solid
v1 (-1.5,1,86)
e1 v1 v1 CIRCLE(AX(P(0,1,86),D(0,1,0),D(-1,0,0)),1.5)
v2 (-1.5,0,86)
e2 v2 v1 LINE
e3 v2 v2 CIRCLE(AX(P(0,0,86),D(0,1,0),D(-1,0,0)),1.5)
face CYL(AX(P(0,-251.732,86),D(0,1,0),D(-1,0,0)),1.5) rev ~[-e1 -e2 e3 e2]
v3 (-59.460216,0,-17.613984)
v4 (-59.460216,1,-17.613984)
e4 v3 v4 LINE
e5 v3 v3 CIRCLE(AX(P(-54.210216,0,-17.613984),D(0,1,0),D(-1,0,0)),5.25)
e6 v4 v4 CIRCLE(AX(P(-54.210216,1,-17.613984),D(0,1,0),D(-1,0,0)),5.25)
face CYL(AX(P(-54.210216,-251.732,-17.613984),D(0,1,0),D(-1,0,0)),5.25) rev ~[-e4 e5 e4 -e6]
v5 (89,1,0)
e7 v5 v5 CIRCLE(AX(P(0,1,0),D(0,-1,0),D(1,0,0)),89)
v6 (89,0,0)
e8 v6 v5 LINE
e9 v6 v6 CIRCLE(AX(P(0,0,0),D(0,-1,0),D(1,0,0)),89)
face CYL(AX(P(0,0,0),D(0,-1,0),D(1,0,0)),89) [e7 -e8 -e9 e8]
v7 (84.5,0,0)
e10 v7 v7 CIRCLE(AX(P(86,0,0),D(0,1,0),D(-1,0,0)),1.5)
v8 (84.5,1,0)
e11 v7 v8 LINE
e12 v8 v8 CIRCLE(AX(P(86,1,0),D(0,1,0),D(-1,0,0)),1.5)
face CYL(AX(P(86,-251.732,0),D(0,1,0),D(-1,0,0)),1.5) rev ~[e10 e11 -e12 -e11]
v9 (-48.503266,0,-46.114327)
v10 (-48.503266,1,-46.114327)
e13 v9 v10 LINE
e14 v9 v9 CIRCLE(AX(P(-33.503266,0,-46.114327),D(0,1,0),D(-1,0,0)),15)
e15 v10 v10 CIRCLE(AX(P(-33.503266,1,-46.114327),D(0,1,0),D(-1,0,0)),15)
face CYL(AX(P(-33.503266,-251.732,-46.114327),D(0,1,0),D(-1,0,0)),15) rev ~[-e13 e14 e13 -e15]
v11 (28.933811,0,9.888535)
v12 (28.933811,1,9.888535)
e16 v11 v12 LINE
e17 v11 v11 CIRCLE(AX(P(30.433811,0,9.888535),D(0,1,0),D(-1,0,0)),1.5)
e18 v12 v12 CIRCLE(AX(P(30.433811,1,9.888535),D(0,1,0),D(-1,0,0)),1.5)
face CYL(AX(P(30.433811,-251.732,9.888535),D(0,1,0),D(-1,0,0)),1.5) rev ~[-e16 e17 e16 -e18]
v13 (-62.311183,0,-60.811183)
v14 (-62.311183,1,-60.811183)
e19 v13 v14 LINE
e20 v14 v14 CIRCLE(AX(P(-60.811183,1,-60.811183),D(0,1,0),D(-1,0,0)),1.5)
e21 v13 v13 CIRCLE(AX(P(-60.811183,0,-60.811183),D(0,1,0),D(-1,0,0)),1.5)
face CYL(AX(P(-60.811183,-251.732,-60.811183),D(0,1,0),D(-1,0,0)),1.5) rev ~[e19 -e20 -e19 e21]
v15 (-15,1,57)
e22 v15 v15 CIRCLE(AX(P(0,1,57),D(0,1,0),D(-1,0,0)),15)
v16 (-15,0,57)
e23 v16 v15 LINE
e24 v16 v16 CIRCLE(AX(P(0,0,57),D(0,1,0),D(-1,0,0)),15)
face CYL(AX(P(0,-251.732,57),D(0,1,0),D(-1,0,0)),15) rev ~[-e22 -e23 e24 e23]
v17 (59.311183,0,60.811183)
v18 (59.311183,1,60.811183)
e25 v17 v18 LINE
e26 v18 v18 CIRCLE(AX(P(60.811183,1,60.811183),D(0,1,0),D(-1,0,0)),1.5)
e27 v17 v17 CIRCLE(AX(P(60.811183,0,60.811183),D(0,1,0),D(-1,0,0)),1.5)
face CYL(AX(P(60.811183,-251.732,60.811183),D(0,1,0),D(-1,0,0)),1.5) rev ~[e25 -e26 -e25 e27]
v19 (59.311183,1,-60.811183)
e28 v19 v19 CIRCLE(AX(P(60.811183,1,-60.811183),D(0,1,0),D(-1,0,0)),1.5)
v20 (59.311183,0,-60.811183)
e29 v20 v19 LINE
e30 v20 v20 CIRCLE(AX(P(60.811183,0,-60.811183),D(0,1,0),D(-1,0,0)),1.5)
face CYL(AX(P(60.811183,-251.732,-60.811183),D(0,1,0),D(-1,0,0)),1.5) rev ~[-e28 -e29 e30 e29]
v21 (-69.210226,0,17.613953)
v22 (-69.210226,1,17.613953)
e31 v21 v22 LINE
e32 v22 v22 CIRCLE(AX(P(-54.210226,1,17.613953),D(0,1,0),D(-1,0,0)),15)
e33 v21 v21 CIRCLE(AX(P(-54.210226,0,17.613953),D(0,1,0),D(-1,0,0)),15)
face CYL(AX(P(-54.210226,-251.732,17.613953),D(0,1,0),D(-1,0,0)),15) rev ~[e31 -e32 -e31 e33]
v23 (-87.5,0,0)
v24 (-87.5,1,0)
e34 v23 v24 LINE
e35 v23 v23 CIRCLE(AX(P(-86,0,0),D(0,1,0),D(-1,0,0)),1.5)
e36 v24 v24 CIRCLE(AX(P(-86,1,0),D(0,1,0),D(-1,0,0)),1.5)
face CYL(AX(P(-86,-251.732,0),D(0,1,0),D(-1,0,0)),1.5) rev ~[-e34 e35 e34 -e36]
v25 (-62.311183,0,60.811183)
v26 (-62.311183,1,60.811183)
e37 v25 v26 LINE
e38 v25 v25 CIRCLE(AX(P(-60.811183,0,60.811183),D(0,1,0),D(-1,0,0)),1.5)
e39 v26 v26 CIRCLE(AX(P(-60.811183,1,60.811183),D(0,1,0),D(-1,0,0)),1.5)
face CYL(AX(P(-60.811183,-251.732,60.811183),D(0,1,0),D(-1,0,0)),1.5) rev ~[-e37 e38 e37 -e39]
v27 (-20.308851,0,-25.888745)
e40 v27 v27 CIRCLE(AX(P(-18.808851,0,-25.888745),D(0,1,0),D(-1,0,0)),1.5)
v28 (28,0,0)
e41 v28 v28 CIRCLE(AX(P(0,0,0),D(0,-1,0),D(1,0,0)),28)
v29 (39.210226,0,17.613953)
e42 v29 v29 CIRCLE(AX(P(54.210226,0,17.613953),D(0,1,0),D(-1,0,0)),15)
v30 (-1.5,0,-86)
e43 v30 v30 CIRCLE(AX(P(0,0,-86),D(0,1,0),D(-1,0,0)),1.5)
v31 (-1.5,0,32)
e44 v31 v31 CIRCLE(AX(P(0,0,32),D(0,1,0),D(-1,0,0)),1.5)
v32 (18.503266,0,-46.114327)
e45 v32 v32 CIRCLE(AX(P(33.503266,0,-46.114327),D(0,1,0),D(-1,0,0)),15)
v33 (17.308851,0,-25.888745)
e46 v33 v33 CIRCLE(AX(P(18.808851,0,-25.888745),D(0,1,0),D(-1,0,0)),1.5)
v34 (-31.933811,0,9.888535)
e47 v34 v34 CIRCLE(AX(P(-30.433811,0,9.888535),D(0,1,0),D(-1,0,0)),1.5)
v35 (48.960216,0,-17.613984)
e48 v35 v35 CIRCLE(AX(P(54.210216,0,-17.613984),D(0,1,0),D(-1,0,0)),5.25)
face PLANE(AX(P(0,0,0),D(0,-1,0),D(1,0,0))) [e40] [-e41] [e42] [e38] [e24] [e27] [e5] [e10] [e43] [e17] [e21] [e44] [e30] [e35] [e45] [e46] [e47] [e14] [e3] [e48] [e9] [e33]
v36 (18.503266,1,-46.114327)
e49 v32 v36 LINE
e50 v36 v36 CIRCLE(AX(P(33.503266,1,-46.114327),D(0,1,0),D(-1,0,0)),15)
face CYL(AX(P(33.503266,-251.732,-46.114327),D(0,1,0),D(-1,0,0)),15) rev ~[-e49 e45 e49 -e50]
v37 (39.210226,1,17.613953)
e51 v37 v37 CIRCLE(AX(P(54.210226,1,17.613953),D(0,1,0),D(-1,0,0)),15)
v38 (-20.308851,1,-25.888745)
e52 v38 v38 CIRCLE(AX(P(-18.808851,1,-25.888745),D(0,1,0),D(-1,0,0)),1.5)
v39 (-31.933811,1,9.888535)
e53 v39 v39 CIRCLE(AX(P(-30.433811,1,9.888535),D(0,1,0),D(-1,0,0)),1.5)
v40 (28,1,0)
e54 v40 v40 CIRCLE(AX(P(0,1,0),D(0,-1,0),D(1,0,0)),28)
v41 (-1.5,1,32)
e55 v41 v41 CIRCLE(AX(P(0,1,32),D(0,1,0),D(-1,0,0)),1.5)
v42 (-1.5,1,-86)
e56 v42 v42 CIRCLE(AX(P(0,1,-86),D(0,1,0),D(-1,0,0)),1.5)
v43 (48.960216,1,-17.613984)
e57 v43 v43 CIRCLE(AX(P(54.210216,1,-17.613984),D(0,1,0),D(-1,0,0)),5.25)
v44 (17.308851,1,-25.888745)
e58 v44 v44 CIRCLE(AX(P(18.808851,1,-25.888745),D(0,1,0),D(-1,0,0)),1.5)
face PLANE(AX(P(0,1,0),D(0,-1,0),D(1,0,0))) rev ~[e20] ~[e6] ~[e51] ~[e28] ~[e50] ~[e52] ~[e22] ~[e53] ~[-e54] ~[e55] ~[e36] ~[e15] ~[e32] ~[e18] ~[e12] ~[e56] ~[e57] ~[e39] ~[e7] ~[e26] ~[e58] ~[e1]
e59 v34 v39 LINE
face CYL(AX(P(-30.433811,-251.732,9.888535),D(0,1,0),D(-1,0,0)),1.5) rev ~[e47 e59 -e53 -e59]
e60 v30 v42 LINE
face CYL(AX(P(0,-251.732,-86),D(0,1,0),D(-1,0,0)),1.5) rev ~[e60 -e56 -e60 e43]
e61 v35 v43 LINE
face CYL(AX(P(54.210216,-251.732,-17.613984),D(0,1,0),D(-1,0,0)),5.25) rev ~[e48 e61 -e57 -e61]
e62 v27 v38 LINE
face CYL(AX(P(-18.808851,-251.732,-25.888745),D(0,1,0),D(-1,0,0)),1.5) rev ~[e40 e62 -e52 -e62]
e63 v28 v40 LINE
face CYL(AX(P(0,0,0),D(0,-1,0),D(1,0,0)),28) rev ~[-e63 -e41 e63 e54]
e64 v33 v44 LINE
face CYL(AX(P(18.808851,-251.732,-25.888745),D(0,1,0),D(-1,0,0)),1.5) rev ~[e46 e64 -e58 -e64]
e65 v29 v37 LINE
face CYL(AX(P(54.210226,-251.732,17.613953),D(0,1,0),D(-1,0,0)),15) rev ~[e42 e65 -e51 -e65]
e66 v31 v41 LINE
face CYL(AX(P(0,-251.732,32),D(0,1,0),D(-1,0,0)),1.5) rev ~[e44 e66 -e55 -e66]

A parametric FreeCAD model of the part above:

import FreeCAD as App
import Part
import Sketcher
Q = App.Units.Quantity

doc = App.newDocument("Part")
body = doc.addObject("PartDesign::Body", "Body")

sketch1 = body.newObject("Sketcher::SketchObject", "Sketch")
sketch1.AttachmentSupport = (doc.getObject("XZ_Plane"), [""])
sketch1.MapMode = "FlatFace"
sketch1.addGeometry(Part.Circle(App.Vector(0, 0, 0), App.Vector(0, 0, 1), 89), False)
sketch1.addGeometry(Part.Circle(App.Vector(0, 0, 0), App.Vector(0, 0, 1), 28), False)
sketch1.addConstraint(Sketcher.Constraint("Coincident", 0, 3, -1, 1))
sketch1.addConstraint(Sketcher.Constraint("Coincident", 1, 3, -1, 1))
sketch1.addConstraint(Sketcher.Constraint("Diameter", 0, Q("178 mm")))
sketch1.addConstraint(Sketcher.Constraint("Diameter", 1, Q("56 mm")))
pad1 = body.newObject("PartDesign::Pad", "Pad")
pad1.Profile = sketch1
pad1.Length = 1
pad1.Reversed = True

sketch2 = body.newObject("Sketcher::SketchObject", "Sketch001")
sketch2.AttachmentSupport = (doc.getObject("XZ_Plane"), [""])
sketch2.MapMode = "FlatFace"
sketch2.addGeometry(Part.Circle(App.Vector(-54, -18, 0), App.Vector(0, 0, 1), 5), False)
sketch2.addGeometry(Part.Circle(App.Vector(54, -18, 0), App.Vector(0, 0, 1), 5), False)
sketch2.addConstraint(Sketcher.Constraint("Equal", 0, 1))
sketch2.addConstraint(Sketcher.Constraint("Symmetric", 0, 3, 1, 3, -2))
sketch2.addConstraint(Sketcher.Constraint("Diameter", 0, Q("10.5 mm")))
sketch2.addConstraint(Sketcher.Constraint("DistanceX", 0, 3, -1, 1, Q("54.210216 mm")))
sketch2.addConstraint(Sketcher.Constraint("DistanceY", 0, 3, -1, 1, Q("17.613984 mm")))
doc.recompute()
hole = body.newObject("PartDesign::Hole", "Hole")
hole.Profile = sketch2
hole.ThreadType = "None"
hole.Diameter = 10.5
hole.DepthType = "ThroughAll"

sketch3 = body.newObject("Sketcher::SketchObject", "Sketch002")
sketch3.AttachmentSupport = (doc.getObject("XZ_Plane"), [""])
sketch3.MapMode = "FlatFace"
sketch3.addGeometry(Part.Circle(App.Vector(-54, 18, 0), App.Vector(0, 0, 1), 15), False)
sketch3.addGeometry(Part.Circle(App.Vector(0, 57, 0), App.Vector(0, 0, 1), 15), False)
sketch3.addGeometry(Part.Circle(App.Vector(54, 18, 0), App.Vector(0, 0, 1), 15), False)
sketch3.addGeometry(Part.Circle(App.Vector(34, -46, 0), App.Vector(0, 0, 1), 15), False)
sketch3.addGeometry(Part.Circle(App.Vector(-34, -46, 0), App.Vector(0, 0, 1), 15), False)
sketch3.addConstraint(Sketcher.Constraint("Equal", 0, 1))
sketch3.addConstraint(Sketcher.Constraint("Equal", 1, 2))
sketch3.addConstraint(Sketcher.Constraint("Equal", 2, 3))
sketch3.addConstraint(Sketcher.Constraint("Equal", 3, 4))
sketch3.addConstraint(Sketcher.Constraint("Symmetric", 0, 3, 2, 3, -2))
sketch3.addConstraint(Sketcher.Constraint("Symmetric", 3, 3, 4, 3, -2))
sketch3.addConstraint(Sketcher.Constraint("PointOnObject", 1, 3, -2))
sketch3.addConstraint(Sketcher.Constraint("Diameter", 0, Q("30 mm")))
sketch3.addConstraint(Sketcher.Constraint("DistanceY", -1, 1, 1, 3, Q("57 mm")))
sketch3.addConstraint(Sketcher.Constraint("DistanceX", 3, 3, 2, 3, Q("20.70696 mm")))
sketch3.addConstraint(Sketcher.Constraint("DistanceY", 3, 3, 2, 3, Q("63.72828 mm")))
sketch3.addConstraint(Sketcher.Constraint("DistanceX", 0, 3, -1, 1, Q("54.210226 mm")))
sketch3.addConstraint(Sketcher.Constraint("DistanceY", -1, 1, 0, 3, Q("17.613953 mm")))
doc.recompute()
hole2 = body.newObject("PartDesign::Hole", "Hole001")
hole2.Profile = sketch3
hole2.ThreadType = "None"
hole2.Diameter = 30
hole2.DepthType = "ThroughAll"

sketch4 = body.newObject("Sketcher::SketchObject", "Sketch003")
sketch4.AttachmentSupport = (doc.getObject("XZ_Plane"), [""])
sketch4.MapMode = "FlatFace"
sketch4.addGeometry(Part.Circle(App.Vector(-30.4, 9.9, 0), App.Vector(0, 0, 1), 1.5), False)
sketch4.addGeometry(Part.Circle(App.Vector(0, 32, 0), App.Vector(0, 0, 1), 1.5), False)
sketch4.addGeometry(Part.Circle(App.Vector(30.4, 9.9, 0), App.Vector(0, 0, 1), 1.5), False)
sketch4.addGeometry(Part.Circle(App.Vector(18.8, -25.9, 0), App.Vector(0, 0, 1), 1.5), False)
sketch4.addGeometry(Part.Circle(App.Vector(-18.8, -25.9, 0), App.Vector(0, 0, 1), 1.5), False)
sketch4.addConstraint(Sketcher.Constraint("Equal", 0, 1))
sketch4.addConstraint(Sketcher.Constraint("Equal", 1, 2))
sketch4.addConstraint(Sketcher.Constraint("Equal", 2, 3))
sketch4.addConstraint(Sketcher.Constraint("Equal", 3, 4))
sketch4.addConstraint(Sketcher.Constraint("Symmetric", 0, 3, 2, 3, -2))
sketch4.addConstraint(Sketcher.Constraint("Symmetric", 3, 3, 4, 3, -2))
sketch4.addConstraint(Sketcher.Constraint("PointOnObject", 1, 3, -2))
sketch4.addConstraint(Sketcher.Constraint("Diameter", 0, Q("3 mm")))
sketch4.addConstraint(Sketcher.Constraint("DistanceY", -1, 1, 1, 3, Q("32 mm")))
sketch4.addConstraint(Sketcher.Constraint("DistanceX", 0, 3, -1, 1, Q("30.433811 mm")))
sketch4.addConstraint(Sketcher.Constraint("DistanceX", -1, 1, 3, 3, Q("18.808851 mm")))
sketch4.addConstraint(Sketcher.Constraint("DistanceY", 3, 3, 2, 3, Q("35.77728 mm")))
sketch4.addConstraint(Sketcher.Constraint("DistanceY", -1, 1, 0, 3, Q("9.888535 mm")))
doc.recompute()
hole3 = body.newObject("PartDesign::Hole", "Hole002")
hole3.Profile = sketch4
hole3.ThreadType = "None"
hole3.Diameter = 3
hole3.DepthType = "ThroughAll"

sketch5 = body.newObject("Sketcher::SketchObject", "Sketch004")
sketch5.AttachmentSupport = (doc.getObject("XZ_Plane"), [""])
sketch5.MapMode = "FlatFace"
sketch5.addGeometry(Part.Circle(App.Vector(-60.8, 60.8, 0), App.Vector(0, 0, 1), 1.5), False)
sketch5.addGeometry(Part.Circle(App.Vector(0, 86, 0), App.Vector(0, 0, 1), 1.5), False)
sketch5.addGeometry(Part.Circle(App.Vector(60.8, 60.8, 0), App.Vector(0, 0, 1), 1.5), False)
sketch5.addGeometry(Part.Circle(App.Vector(86, 0, 0), App.Vector(0, 0, 1), 1.5), False)
sketch5.addGeometry(Part.Circle(App.Vector(60.8, -60.8, 0), App.Vector(0, 0, 1), 1.5), False)
sketch5.addGeometry(Part.Circle(App.Vector(0, -86, 0), App.Vector(0, 0, 1), 1.5), False)
sketch5.addGeometry(Part.Circle(App.Vector(-60.8, -60.8, 0), App.Vector(0, 0, 1), 1.5), False)
sketch5.addGeometry(Part.Circle(App.Vector(-86, 0, 0), App.Vector(0, 0, 1), 1.5), False)
sketch5.addConstraint(Sketcher.Constraint("Equal", 0, 1))
sketch5.addConstraint(Sketcher.Constraint("Equal", 1, 2))
sketch5.addConstraint(Sketcher.Constraint("Equal", 2, 3))
sketch5.addConstraint(Sketcher.Constraint("Equal", 3, 4))
sketch5.addConstraint(Sketcher.Constraint("Equal", 4, 5))
sketch5.addConstraint(Sketcher.Constraint("Equal", 5, 6))
sketch5.addConstraint(Sketcher.Constraint("Equal", 6, 7))
sketch5.addConstraint(Sketcher.Constraint("Symmetric", 0, 3, 4, 3, -1, 1))
sketch5.addConstraint(Sketcher.Constraint("Symmetric", 1, 3, 5, 3, -1, 1))
sketch5.addConstraint(Sketcher.Constraint("Symmetric", 2, 3, 6, 3, -1, 1))
sketch5.addConstraint(Sketcher.Constraint("Symmetric", 3, 3, 7, 3, -1, 1))
sketch5.addConstraint(Sketcher.Constraint("Symmetric", 0, 3, 2, 3, -2))
sketch5.addConstraint(Sketcher.Constraint("PointOnObject", 1, 3, -2))
sketch5.addConstraint(Sketcher.Constraint("PointOnObject", 3, 3, -1))
sketch5.addConstraint(Sketcher.Constraint("Diameter", 0, Q("3 mm")))
sketch5.addConstraint(Sketcher.Constraint("DistanceY", -1, 1, 1, 3, Q("86 mm")))
sketch5.addConstraint(Sketcher.Constraint("DistanceX", -1, 1, 3, 3, Q("86 mm")))
sketch5.addConstraint(Sketcher.Constraint("DistanceX", 0, 3, -1, 1, Q("60.811183 mm")))
sketch5.addConstraint(Sketcher.Constraint("DistanceY", -1, 1, 0, 3, Q("60.811183 mm")))
doc.recompute()
hole4 = body.newObject("PartDesign::Hole", "Hole003")
hole4.Profile = sketch5
hole4.ThreadType = "None"
hole4.Diameter = 3
hole4.DepthType = "ThroughAll"

doc.recompute()
